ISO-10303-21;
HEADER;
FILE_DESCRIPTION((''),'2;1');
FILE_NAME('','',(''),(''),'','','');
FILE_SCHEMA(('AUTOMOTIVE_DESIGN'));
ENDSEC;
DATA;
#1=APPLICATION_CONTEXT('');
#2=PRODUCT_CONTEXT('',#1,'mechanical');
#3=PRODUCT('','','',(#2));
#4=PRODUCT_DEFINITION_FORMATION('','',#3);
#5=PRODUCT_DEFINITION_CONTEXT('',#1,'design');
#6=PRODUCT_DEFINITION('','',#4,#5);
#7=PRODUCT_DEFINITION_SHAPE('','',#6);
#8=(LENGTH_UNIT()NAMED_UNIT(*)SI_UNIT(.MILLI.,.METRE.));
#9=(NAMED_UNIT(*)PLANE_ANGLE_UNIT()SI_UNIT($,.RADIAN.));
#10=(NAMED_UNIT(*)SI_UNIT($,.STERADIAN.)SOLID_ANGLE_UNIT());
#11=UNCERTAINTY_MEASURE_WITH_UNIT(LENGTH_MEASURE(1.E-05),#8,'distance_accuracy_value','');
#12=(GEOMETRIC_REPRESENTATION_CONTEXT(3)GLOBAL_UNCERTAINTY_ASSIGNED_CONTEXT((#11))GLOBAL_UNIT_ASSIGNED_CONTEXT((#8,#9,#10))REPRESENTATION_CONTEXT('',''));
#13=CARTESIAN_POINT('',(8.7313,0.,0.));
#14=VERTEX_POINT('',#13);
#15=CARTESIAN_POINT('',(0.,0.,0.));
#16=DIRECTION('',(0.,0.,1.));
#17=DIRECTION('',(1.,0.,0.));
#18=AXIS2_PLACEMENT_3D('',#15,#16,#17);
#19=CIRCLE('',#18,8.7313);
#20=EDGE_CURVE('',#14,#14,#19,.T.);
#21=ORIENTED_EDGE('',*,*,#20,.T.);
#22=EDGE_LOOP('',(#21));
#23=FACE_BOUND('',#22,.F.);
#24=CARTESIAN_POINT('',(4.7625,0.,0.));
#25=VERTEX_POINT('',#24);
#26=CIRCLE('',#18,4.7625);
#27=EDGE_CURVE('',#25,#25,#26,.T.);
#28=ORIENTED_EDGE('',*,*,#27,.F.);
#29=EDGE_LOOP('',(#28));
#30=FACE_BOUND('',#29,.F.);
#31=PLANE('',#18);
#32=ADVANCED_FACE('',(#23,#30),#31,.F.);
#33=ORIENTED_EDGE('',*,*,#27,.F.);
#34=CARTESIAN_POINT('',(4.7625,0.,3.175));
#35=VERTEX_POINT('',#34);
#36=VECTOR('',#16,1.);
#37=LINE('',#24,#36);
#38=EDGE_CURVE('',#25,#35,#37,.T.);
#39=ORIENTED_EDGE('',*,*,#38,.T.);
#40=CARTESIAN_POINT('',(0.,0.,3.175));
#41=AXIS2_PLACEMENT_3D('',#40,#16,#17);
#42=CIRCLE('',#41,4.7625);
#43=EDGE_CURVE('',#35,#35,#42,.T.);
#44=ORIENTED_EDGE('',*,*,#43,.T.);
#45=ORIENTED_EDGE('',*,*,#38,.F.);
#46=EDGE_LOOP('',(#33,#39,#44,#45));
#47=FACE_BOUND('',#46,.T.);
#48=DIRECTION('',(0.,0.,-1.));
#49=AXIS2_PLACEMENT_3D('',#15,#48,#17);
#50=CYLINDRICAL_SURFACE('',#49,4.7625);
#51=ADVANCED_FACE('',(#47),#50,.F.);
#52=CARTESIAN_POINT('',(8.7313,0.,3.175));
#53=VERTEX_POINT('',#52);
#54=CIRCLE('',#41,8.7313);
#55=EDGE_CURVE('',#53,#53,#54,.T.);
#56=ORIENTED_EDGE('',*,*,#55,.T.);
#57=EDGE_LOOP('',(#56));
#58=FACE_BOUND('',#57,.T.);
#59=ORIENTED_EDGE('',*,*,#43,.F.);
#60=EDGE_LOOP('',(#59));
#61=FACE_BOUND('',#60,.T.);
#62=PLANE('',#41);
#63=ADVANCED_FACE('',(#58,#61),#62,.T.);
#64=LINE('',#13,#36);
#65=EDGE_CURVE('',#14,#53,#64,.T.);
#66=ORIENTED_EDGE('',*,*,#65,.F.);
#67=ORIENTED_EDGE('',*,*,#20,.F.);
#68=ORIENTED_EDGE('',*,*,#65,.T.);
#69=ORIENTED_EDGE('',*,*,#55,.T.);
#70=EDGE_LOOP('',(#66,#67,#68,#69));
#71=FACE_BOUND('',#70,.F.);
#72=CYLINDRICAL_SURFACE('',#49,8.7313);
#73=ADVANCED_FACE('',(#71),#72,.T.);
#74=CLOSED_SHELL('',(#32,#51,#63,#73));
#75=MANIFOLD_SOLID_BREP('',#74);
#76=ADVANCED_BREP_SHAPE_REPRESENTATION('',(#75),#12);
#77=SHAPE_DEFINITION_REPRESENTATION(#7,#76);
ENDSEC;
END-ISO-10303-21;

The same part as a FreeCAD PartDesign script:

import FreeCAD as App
import Part
import Sketcher
Q = App.Units.Quantity

doc = App.newDocument("Part")
body = doc.addObject("PartDesign::Body", "Body")

# Sketch on XY plane
sketch1 = body.newObject("Sketcher::SketchObject", "Sketch")
sketch1.AttachmentSupport = (doc.getObject("XY_Plane"), [""])
sketch1.MapMode = "FlatFace"
sketch1.addGeometry([
    Part.Circle(App.Vector(0, 0, 0), App.Vector(0, 0, 1), 8.7),
    Part.Circle(App.Vector(0, 0, 0), App.Vector(0, 0, 1), 4.8),
], False)
sketch1.addConstraint([
    Sketcher.Constraint("Coincident", 0, 3, -1, 1),
    Sketcher.Constraint("Coincident", 1, 3, -1, 1),
    Sketcher.Constraint("Diameter", 0, Q("0.6875 in")),
    Sketcher.Constraint("Diameter", 1, Q("0.375 in")),
])
pad1 = body.newObject("PartDesign::Pad", "Pad")
pad1.Profile = sketch1
pad1.Length = Q("0.125 in")

doc.recompute()
